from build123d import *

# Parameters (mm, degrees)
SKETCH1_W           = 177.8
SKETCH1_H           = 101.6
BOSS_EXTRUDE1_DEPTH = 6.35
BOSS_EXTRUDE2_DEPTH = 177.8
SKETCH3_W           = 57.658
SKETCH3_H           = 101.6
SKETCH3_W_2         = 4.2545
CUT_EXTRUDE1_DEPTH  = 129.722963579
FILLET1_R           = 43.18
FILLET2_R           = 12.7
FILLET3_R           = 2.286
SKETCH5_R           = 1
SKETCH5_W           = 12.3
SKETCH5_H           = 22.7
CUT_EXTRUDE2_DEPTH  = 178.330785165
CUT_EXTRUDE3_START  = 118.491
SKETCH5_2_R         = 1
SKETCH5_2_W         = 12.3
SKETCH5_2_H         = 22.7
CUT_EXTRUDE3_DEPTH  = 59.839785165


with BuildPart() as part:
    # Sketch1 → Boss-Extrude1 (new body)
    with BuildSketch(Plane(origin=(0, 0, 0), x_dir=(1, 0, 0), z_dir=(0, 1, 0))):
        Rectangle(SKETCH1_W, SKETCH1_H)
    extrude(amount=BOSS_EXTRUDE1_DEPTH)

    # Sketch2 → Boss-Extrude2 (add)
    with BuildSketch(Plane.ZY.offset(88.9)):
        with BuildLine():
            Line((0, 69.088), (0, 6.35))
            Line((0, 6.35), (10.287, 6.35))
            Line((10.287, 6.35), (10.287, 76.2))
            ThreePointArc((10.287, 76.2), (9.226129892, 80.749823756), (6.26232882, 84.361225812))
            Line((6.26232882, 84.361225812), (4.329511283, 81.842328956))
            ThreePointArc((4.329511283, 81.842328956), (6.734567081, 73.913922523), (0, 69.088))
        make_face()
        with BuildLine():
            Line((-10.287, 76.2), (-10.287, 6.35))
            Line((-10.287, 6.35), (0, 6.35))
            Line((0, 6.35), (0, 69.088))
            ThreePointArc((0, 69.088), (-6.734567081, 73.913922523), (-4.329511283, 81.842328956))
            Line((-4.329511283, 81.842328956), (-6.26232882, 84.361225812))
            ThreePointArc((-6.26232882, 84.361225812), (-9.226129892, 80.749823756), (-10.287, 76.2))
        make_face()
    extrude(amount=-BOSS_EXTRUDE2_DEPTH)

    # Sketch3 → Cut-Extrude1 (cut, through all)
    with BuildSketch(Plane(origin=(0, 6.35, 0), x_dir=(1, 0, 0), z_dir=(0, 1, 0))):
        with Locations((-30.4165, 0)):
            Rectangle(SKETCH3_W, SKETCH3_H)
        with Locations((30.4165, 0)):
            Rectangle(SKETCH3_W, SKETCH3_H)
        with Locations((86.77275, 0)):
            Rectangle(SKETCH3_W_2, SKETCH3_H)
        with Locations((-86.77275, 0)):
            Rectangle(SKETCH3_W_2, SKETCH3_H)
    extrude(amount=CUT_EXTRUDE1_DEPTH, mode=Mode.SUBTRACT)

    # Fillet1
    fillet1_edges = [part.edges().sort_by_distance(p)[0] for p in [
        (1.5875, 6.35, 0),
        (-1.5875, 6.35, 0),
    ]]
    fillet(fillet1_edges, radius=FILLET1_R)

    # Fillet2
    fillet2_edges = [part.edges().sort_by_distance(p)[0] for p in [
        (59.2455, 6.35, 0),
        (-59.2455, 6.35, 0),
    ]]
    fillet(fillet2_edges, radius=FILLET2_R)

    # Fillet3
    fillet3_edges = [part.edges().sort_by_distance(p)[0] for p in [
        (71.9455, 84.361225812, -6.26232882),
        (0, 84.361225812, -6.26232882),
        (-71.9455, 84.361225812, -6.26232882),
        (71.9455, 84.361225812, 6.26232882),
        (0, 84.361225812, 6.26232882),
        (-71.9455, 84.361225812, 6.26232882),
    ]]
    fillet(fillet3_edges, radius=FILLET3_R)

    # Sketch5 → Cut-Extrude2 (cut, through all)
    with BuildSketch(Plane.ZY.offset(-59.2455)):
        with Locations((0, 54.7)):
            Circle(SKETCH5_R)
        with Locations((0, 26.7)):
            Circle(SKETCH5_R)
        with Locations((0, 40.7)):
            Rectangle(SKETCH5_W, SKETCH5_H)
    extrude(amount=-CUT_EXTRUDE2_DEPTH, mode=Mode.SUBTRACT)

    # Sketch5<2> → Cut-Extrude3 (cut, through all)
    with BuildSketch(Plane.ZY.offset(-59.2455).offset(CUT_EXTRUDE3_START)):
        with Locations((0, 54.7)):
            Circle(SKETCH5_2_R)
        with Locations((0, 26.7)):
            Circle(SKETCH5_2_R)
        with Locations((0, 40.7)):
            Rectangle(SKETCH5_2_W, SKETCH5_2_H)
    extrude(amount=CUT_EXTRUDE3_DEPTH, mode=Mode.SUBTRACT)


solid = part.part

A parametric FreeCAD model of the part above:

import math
import FreeCAD as App
import Part
import Sketcher
Q = App.Units.Quantity


def edges_at(feature, points):
    """Names of the edges that pass closest to the given points."""
    edges = feature.Shape.Edges
    near = lambda p: min(range(len(edges)), key=lambda i: edges[i].distToShape(Part.Vertex(*p))[0])
    return sorted({f"Edge{near(p) + 1}" for p in points})


def add_polygon(sketch, points):
    """Adds a closed chain of lines whose ends are joined by coincident constraints."""
    first, n = sketch.GeometryCount, len(points)
    for a, b in zip(points, points[1:] + points[:1]):
        sketch.addGeometry(Part.LineSegment(App.Vector(*a, 0), App.Vector(*b, 0)), False)
    for i in range(n):
        sketch.addConstraint(Sketcher.Constraint("Coincident", first + i, 2, first + (i + 1) % n, 1))

doc = App.newDocument("Part")
body = doc.addObject("PartDesign::Body", "Body")

sketch1 = body.newObject("Sketcher::SketchObject", "Sketch")
sketch1.AttachmentSupport = (doc.getObject("XZ_Plane"), [""])
sketch1.MapMode = "FlatFace"
add_polygon(sketch1, [(-89, -51), (-89, 51), (89, 51), (89, -51)])
sketch1.addConstraint(Sketcher.Constraint("Vertical", 0))
sketch1.addConstraint(Sketcher.Constraint("Horizontal", 1))
sketch1.addConstraint(Sketcher.Constraint("Vertical", 2))
sketch1.addConstraint(Sketcher.Constraint("Horizontal", 3))
sketch1.addConstraint(Sketcher.Constraint("Symmetric", 0, 2, 2, 2, -1, 1))
sketch1.addConstraint(Sketcher.Constraint("DistanceX", 1, 1, 1, 2, Q("7 in")))
sketch1.addConstraint(Sketcher.Constraint("DistanceY", 0, 1, 0, 2, Q("4 in")))
pad1 = body.newObject("PartDesign::Pad", "Pad")
pad1.Profile = sketch1
pad1.Length = Q("0.25 in")
pad1.Reversed = True

sketch2 = body.newObject("Sketcher::SketchObject", "Sketch001")
sketch2.AttachmentSupport = (doc.getObject("YZ_Plane"), [""])
sketch2.MapMode = "FlatFace"
sketch2.AttachmentOffset = App.Placement(App.Vector(0, 0, -3.5 * 25.4), App.Rotation())
sketch2.addGeometry(Part.LineSegment(App.Vector(6.3, 10.3, 0), App.Vector(76.2, 10.3, 0)), False)
sketch2.addGeometry(Part.ArcOfCircle(Part.Circle(App.Vector(76.2, 0, 0), App.Vector(0, 0, 1), 10.3), math.radians(38), math.radians(90)), False)
sketch2.addGeometry(Part.LineSegment(App.Vector(84.4, 6.3, 0), App.Vector(81.8, 4.3, 0)), False)
sketch2.addGeometry(Part.ArcOfCircle(Part.Circle(App.Vector(76.2, 0, 0), App.Vector(0, 0, 1), 7.1), math.radians(38), math.radians(180)), False)
sketch2.addGeometry(Part.ArcOfCircle(Part.Circle(App.Vector(76.2, 0, 0), App.Vector(0, 0, 1), 7.1), math.radians(180), math.radians(322)), False)
sketch2.addGeometry(Part.LineSegment(App.Vector(81.8, -4.3, 0), App.Vector(84.4, -6.3, 0)), False)
sketch2.addGeometry(Part.ArcOfCircle(Part.Circle(App.Vector(76.2, 0, 0), App.Vector(0, 0, 1), 10.3), math.radians(-90), math.radians(-38)), False)
sketch2.addGeometry(Part.LineSegment(App.Vector(76.2, -10.3, 0), App.Vector(6.3, -10.3, 0)), False)
sketch2.addGeometry(Part.LineSegment(App.Vector(6.3, -10.3, 0), App.Vector(6.3, 10.3, 0)), False)
sketch2.addConstraint(Sketcher.Constraint("Tangent", 0, 2, 1, 2))
sketch2.addConstraint(Sketcher.Constraint("Coincident", 1, 1, 2, 1))
sketch2.addConstraint(Sketcher.Constraint("Coincident", 2, 2, 3, 1))
sketch2.addConstraint(Sketcher.Constraint("Tangent", 3, 2, 4, 1))
sketch2.addConstraint(Sketcher.Constraint("Coincident", 4, 2, 5, 1))
sketch2.addConstraint(Sketcher.Constraint("Coincident", 5, 2, 6, 2))
sketch2.addConstraint(Sketcher.Constraint("Tangent", 6, 1, 7, 1))
sketch2.addConstraint(Sketcher.Constraint("Coincident", 7, 2, 8, 1))
sketch2.addConstraint(Sketcher.Constraint("Coincident", 8, 2, 0, 1))
sketch2.addConstraint(Sketcher.Constraint("Horizontal", 0))
sketch2.addConstraint(Sketcher.Constraint("Horizontal", 7))
sketch2.addConstraint(Sketcher.Constraint("Vertical", 8))
sketch2.addConstraint(Sketcher.Constraint("Coincident", 3, 3, 1, 3))
sketch2.addConstraint(Sketcher.Constraint("Coincident", 6, 3, 1, 3))
sketch2.addConstraint(Sketcher.Constraint("Equal", 3, 4))
sketch2.addConstraint(Sketcher.Constraint("Equal", 1, 6))
sketch2.addConstraint(Sketcher.Constraint("Symmetric", 2, 2, 4, 2, -1))
sketch2.addConstraint(Sketcher.Constraint("PointOnObject", 3, 2, -1))
sketch2.addConstraint(Sketcher.Constraint("Vertical", 1, 1, 5, 2))
sketch2.addConstraint(Sketcher.Constraint("Radius", 3, Q("0.28 in")))
sketch2.addConstraint(Sketcher.Constraint("DistanceX", -1, 1, 1, 3, Q("3 in")))
sketch2.addConstraint(Sketcher.Constraint("Radius", 1, Q("0.405 in")))
sketch2.addConstraint(Sketcher.Constraint("DistanceX", 0, 1, 0, 2, Q("2.75 in")))
sketch2.addConstraint(Sketcher.Constraint("Angle", 2, Q("-142.5 deg")))
sketch2.addConstraint(Sketcher.Constraint("DistanceY", -1, 1, 1, 1, 6.262329))
pad2 = body.newObject("PartDesign::Pad", "Pad001")
pad2.Profile = sketch2
pad2.Length = Q("7 in")

sketch3 = body.newObject("Sketcher::SketchObject", "Sketch002")
sketch3.AttachmentSupport = (doc.getObject("XZ_Plane"), [""])
sketch3.MapMode = "FlatFace"
sketch3.AttachmentOffset = App.Placement(App.Vector(0, 0, -0.25 * 25.4), App.Rotation())
add_polygon(sketch3, [(-59.2, -50.8), (-59.2, 50.8), (-1.6, 50.8), (-1.6, -50.8)])
add_polygon(sketch3, [(1.6, -50.8), (1.6, 50.8), (59.2, 50.8), (59.2, -50.8)])
add_polygon(sketch3, [(84.6, -50.8), (84.6, 50.8), (88.9, 50.8), (88.9, -50.8)])
add_polygon(sketch3, [(-88.9, -50.8), (-88.9, 50.8), (-84.6, 50.8), (-84.6, -50.8)])
sketch3.addConstraint(Sketcher.Constraint("Vertical", 0))
sketch3.addConstraint(Sketcher.Constraint("Horizontal", 1))
sketch3.addConstraint(Sketcher.Constraint("Vertical", 2))
sketch3.addConstraint(Sketcher.Constraint("Horizontal", 3))
sketch3.addConstraint(Sketcher.Constraint("Vertical", 4))
sketch3.addConstraint(Sketcher.Constraint("Horizontal", 5))
sketch3.addConstraint(Sketcher.Constraint("Vertical", 6))
sketch3.addConstraint(Sketcher.Constraint("Horizontal", 7))
sketch3.addConstraint(Sketcher.Constraint("Vertical", 8))
sketch3.addConstraint(Sketcher.Constraint("Horizontal", 9))
sketch3.addConstraint(Sketcher.Constraint("Vertical", 10))
sketch3.addConstraint(Sketcher.Constraint("Horizontal", 11))
sketch3.addConstraint(Sketcher.Constraint("Vertical", 12))
sketch3.addConstraint(Sketcher.Constraint("Horizontal", 13))
sketch3.addConstraint(Sketcher.Constraint("Vertical", 14))
sketch3.addConstraint(Sketcher.Constraint("Horizontal", 15))
sketch3.addConstraint(Sketcher.Constraint("Symmetric", 2, 2, 4, 2, -1, 1))
sketch3.addConstraint(Sketcher.Constraint("Symmetric", 0, 2, 6, 2, -1, 1))
sketch3.addConstraint(Sketcher.Constraint("Symmetric", 10, 2, 12, 2, -1, 1))
sketch3.addConstraint(Sketcher.Constraint("Symmetric", 8, 2, 14, 2, -1, 1))
sketch3.addConstraint(Sketcher.Constraint("Horizontal", 1, 2, 4, 2))
sketch3.addConstraint(Sketcher.Constraint("Horizontal", 5, 2, 8, 2))
sketch3.addConstraint(Sketcher.Constraint("Horizontal", 7, 2, 10, 2))
sketch3.addConstraint(Sketcher.Constraint("DistanceY", 0, 1, 0, 2, Q("4 in")))
sketch3.addConstraint(Sketcher.Constraint("DistanceX", 5, 2, 8, 2, Q("1 in")))
sketch3.addConstraint(Sketcher.Constraint("DistanceX", 1, 1, 1, 2, Q("2.27 in")))
sketch3.addConstraint(Sketcher.Constraint("DistanceX", -1, 1, 9, 2, Q("3.5 in")))
sketch3.addConstraint(Sketcher.Constraint("DistanceX", 9, 1, 9, 2, Q("0.1675 in")))
pocket1 = body.newObject("PartDesign::Pocket", "Pocket")
pocket1.Profile = sketch3
pocket1.Type = "ThroughAll"
doc.recompute()

fillet = body.newObject("PartDesign::Fillet", "Fillet")
fillet.Base = (pocket1, edges_at(pocket1, [(1.587, 6.35, 0), (-1.587, 6.35, 0)]))
fillet.Radius = Q("1.7 in")
doc.recompute()

fillet2 = body.newObject("PartDesign::Fillet", "Fillet001")
fillet2.Base = (fillet, edges_at(fillet, [(59.245, 6.35, 0), (-59.245, 6.35, 0)]))
fillet2.Radius = Q("0.5 in")
doc.recompute()

fillet3 = body.newObject("PartDesign::Fillet", "Fillet002")
fillet3.Base = (fillet2, edges_at(fillet2, [
    (71.945, 84.361, -6.262),
    (0, 84.361, -6.262),
    (-71.945, 84.361, -6.262),
    (71.945, 84.361, 6.262),
    (0, 84.361, 6.262),
    (-71.945, 84.361, 6.262),
]))
fillet3.Radius = Q("0.09 in")

sketch4 = body.newObject("Sketcher::SketchObject", "Sketch003")
sketch4.AttachmentSupport = (doc.getObject("YZ_Plane"), [""])
sketch4.MapMode = "FlatFace"
sketch4.AttachmentOffset = App.Placement(App.Vector(0, 0, 2.3325 * 25.4), App.Rotation())
sketch4.addGeometry(Part.Circle(App.Vector(54.7, 0, 0), App.Vector(0, 0, 1), 1), False)
sketch4.addGeometry(Part.Circle(App.Vector(26.7, 0, 0), App.Vector(0, 0, 1), 1), False)
add_polygon(sketch4, [(52, -6.2), (29.4, -6.2), (29.4, 6.2), (52, 6.2)])
sketch4.addConstraint(Sketcher.Constraint("Horizontal", 2))
sketch4.addConstraint(Sketcher.Constraint("Vertical", 3))
sketch4.addConstraint(Sketcher.Constraint("Horizontal", 4))
sketch4.addConstraint(Sketcher.Constraint("Vertical", 5))
sketch4.addConstraint(Sketcher.Constraint("Equal", 0, 1))
sketch4.addConstraint(Sketcher.Constraint("PointOnObject", 0, 3, -1))
sketch4.addConstraint(Sketcher.Constraint("PointOnObject", 1, 3, -1))
sketch4.addConstraint(Sketcher.Constraint("Diameter", 0, 2.0))
sketch4.addConstraint(Sketcher.Constraint("DistanceX", 2, 2, 2, 1, 22.7))
sketch4.addConstraint(Sketcher.Constraint("DistanceY", 3, 1, 3, 2, 12.3))
sketch4.addConstraint(Sketcher.Constraint("DistanceX", -1, 1, 0, 3, 54.7))
sketch4.addConstraint(Sketcher.Constraint("DistanceX", -1, 1, 1, 3, 26.7))
sketch4.addConstraint(Sketcher.Constraint("DistanceX", -1, 1, 2, 2, 29.35))
sketch4.addConstraint(Sketcher.Constraint("DistanceY", 2, 2, -1, 1, 6.15))
pocket2 = body.newObject("PartDesign::Pocket", "Pocket001")
pocket2.Profile = sketch4
pocket2.Type = "ThroughAll"
pocket2.Reversed = True

sketch5 = body.newObject("Sketcher::SketchObject", "Sketch004")
sketch5.AttachmentSupport = (doc.getObject("YZ_Plane"), [""])
sketch5.MapMode = "FlatFace"
sketch5.AttachmentOffset = App.Placement(App.Vector(0, 0, -2.3325 * 25.4), App.Rotation())
sketch5.addGeometry(Part.Circle(App.Vector(54.7, 0, 0), App.Vector(0, 0, 1), 1), False)
sketch5.addGeometry(Part.Circle(App.Vector(26.7, 0, 0), App.Vector(0, 0, 1), 1), False)
add_polygon(sketch5, [(52, -6.2), (29.4, -6.2), (29.4, 6.2), (52, 6.2)])
sketch5.addConstraint(Sketcher.Constraint("Horizontal", 2))
sketch5.addConstraint(Sketcher.Constraint("Vertical", 3))
sketch5.addConstraint(Sketcher.Constraint("Horizontal", 4))
sketch5.addConstraint(Sketcher.Constraint("Vertical", 5))
sketch5.addConstraint(Sketcher.Constraint("Equal", 0, 1))
sketch5.addConstraint(Sketcher.Constraint("PointOnObject", 0, 3, -1))
sketch5.addConstraint(Sketcher.Constraint("PointOnObject", 1, 3, -1))
sketch5.addConstraint(Sketcher.Constraint("Diameter", 0, 2.0))
sketch5.addConstraint(Sketcher.Constraint("DistanceX", 2, 2, 2, 1, 22.7))
sketch5.addConstraint(Sketcher.Constraint("DistanceY", 3, 1, 3, 2, 12.3))
sketch5.addConstraint(Sketcher.Constraint("DistanceX", -1, 1, 0, 3, 54.7))
sketch5.addConstraint(Sketcher.Constraint("DistanceX", -1, 1, 1, 3, 26.7))
sketch5.addConstraint(Sketcher.Constraint("DistanceX", -1, 1, 2, 2, 29.35))
sketch5.addConstraint(Sketcher.Constraint("DistanceY", 2, 2, -1, 1, 6.15))
pocket3 = body.newObject("PartDesign::Pocket", "Pocket002")
pocket3.Profile = sketch5
pocket3.Type = "ThroughAll"

doc.recompute()
